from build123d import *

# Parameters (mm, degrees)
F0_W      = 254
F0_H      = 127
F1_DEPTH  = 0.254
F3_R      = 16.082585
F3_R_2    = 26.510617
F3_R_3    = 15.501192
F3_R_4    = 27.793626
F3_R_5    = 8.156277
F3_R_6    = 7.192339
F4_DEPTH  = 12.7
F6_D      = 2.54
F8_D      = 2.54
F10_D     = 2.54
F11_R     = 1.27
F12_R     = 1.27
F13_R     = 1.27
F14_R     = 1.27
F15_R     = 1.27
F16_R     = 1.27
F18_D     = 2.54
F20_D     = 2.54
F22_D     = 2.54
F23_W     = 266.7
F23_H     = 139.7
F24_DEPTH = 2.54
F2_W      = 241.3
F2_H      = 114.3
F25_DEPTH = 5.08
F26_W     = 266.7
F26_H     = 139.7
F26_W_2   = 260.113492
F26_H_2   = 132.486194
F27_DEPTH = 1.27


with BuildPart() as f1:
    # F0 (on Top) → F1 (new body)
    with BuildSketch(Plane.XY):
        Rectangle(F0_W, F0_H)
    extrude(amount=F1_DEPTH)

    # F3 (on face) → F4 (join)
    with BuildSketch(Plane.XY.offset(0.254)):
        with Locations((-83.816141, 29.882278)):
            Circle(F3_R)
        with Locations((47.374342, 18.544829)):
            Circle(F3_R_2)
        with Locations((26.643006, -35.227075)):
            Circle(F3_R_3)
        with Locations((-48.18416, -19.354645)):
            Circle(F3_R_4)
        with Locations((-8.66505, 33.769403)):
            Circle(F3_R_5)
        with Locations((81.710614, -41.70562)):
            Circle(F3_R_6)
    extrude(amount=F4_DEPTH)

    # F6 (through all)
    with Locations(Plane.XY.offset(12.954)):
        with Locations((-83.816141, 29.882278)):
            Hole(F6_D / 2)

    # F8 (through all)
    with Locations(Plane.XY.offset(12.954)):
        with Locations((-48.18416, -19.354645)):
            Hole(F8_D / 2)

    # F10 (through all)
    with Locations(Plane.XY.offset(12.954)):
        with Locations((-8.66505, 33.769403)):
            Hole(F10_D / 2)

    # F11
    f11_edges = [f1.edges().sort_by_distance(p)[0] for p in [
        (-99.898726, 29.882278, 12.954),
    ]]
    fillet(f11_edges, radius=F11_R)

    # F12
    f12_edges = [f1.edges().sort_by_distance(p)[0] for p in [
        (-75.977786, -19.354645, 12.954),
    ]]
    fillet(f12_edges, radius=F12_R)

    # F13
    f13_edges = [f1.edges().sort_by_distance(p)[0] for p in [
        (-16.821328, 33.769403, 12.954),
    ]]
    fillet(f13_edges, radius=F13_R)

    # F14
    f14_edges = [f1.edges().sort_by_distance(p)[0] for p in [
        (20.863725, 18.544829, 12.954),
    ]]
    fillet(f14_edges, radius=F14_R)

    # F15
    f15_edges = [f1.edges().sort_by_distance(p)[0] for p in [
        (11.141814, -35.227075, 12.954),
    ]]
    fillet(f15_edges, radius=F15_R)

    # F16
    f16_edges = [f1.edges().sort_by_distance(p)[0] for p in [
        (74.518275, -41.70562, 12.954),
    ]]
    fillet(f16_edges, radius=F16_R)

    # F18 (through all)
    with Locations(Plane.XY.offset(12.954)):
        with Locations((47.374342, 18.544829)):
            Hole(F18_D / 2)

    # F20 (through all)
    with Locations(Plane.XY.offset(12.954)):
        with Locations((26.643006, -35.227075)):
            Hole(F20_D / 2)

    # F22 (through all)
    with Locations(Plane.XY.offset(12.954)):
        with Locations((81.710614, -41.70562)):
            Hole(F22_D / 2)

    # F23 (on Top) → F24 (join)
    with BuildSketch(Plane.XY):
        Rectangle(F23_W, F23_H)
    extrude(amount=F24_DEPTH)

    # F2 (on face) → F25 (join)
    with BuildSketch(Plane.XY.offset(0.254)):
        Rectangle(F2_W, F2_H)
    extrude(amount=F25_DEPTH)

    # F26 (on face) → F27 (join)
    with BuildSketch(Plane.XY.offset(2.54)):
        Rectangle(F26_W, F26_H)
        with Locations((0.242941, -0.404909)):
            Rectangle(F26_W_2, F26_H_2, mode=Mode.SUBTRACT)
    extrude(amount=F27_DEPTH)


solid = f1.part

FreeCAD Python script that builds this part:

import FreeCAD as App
import Part
import Sketcher
from FreeCAD import Vector
Q = App.Units.Quantity


def edges_at(feature, points):
    """Names of the edges that pass closest to the given points."""
    edges = feature.Shape.Edges
    near = lambda p: min(range(len(edges)), key=lambda i: edges[i].distToShape(Part.Vertex(*p))[0])
    return sorted({f"Edge{near(p) + 1}" for p in points})


def add_polygon(sketch, points):
    """Adds a closed chain of lines whose ends are joined by coincident constraints."""
    first, n = sketch.GeometryCount, len(points)
    for a, b in zip(points, points[1:] + points[:1]):
        sketch.addGeometry(Part.LineSegment(App.Vector(*a, 0), App.Vector(*b, 0)), False)
    for i in range(n):
        sketch.addConstraint(Sketcher.Constraint("Coincident", first + i, 2, first + (i + 1) % n, 1))

doc = App.newDocument("Part")
body = doc.addObject("PartDesign::Body", "Body")

sketch1 = doc.addObject("Sketcher::SketchObject", "Sketch")
body.addObject(sketch1)
sketch1.AttachmentSupport = (doc.XY_Plane, [""])
sketch1.MapMode = "FlatFace"
add_polygon(sketch1, [(-127, 63.5), (-127, -63.5), (127, -63.5), (127, 63.5)])
sketch1.addConstraint(Sketcher.Constraint("Vertical", 0))
sketch1.addConstraint(Sketcher.Constraint("Horizontal", 1))
sketch1.addConstraint(Sketcher.Constraint("Vertical", 2))
sketch1.addConstraint(Sketcher.Constraint("Horizontal", 3))
sketch1.addConstraint(Sketcher.Constraint("Symmetric", 0, 2, 2, 2, -1, 1))
sketch1.addConstraint(Sketcher.Constraint("DistanceX", 1, 1, 1, 2, Q("10 in")))
sketch1.addConstraint(Sketcher.Constraint("DistanceY", 0, 2, 0, 1, Q("5 in")))
pad1 = doc.addObject("PartDesign::Pad", "Pad")
body.addObject(pad1)
pad1.Profile = sketch1
pad1.Length = Q("0.01 in")

sketch2 = doc.addObject("Sketcher::SketchObject", "Sketch001")
body.addObject(sketch2)
sketch2.AttachmentSupport = (doc.XY_Plane, [""])
sketch2.MapMode = "FlatFace"
sketch2.AttachmentOffset = App.Placement(Vector(0, 0, 0.01 * 25.4), App.Rotation())
sketch2.addGeometry(Part.Circle(Vector(-83.816141, 29.882278, 0), Vector(0, 0, 1), 16.082585), False)
sketch2.addGeometry(Part.Circle(Vector(47.374342, 18.544829, 0), Vector(0, 0, 1), 26.510617), False)
sketch2.addGeometry(Part.Circle(Vector(26.643006, -35.227075, 0), Vector(0, 0, 1), 15.501192), False)
sketch2.addGeometry(Part.Circle(Vector(-48.18416, -19.354645, 0), Vector(0, 0, 1), 27.793626), False)
sketch2.addGeometry(Part.Circle(Vector(-8.66505, 33.769403, 0), Vector(0, 0, 1), 8.156277), False)
sketch2.addGeometry(Part.Circle(Vector(81.710614, -41.70562, 0), Vector(0, 0, 1), 7.192339), False)
sketch2.addConstraint(Sketcher.Constraint("Diameter", 0, Q("32.16517 mm")))
sketch2.addConstraint(Sketcher.Constraint("Diameter", 1, Q("53.021234 mm")))
sketch2.addConstraint(Sketcher.Constraint("Diameter", 2, Q("31.002384 mm")))
sketch2.addConstraint(Sketcher.Constraint("Diameter", 3, Q("55.587252 mm")))
sketch2.addConstraint(Sketcher.Constraint("Diameter", 4, Q("16.312554 mm")))
sketch2.addConstraint(Sketcher.Constraint("Diameter", 5, Q("14.384678 mm")))
sketch2.addConstraint(Sketcher.Constraint("DistanceX", 0, 3, -1, 1, Q("83.816141 mm")))
sketch2.addConstraint(Sketcher.Constraint("DistanceY", -1, 1, 1, 3, Q("18.544829 mm")))
sketch2.addConstraint(Sketcher.Constraint("DistanceX", 3, 3, -1, 1, Q("48.18416 mm")))
sketch2.addConstraint(Sketcher.Constraint("DistanceX", 4, 3, -1, 1, Q("8.66505 mm")))
sketch2.addConstraint(Sketcher.Constraint("DistanceY", 5, 3, -1, 1, Q("41.70562 mm")))
sketch2.addConstraint(Sketcher.Constraint("DistanceY", 1, 3, 0, 3, Q("11.337449 mm")))
sketch2.addConstraint(Sketcher.Constraint("DistanceY", 2, 3, 3, 3, Q("15.87243 mm")))
sketch2.addConstraint(Sketcher.Constraint("DistanceY", 3, 3, 4, 3, Q("53.124048 mm")))
sketch2.addConstraint(Sketcher.Constraint("DistanceX", 2, 3, 5, 3, Q("55.067608 mm")))
sketch2.addConstraint(Sketcher.Constraint("DistanceX", -1, 1, 1, 3, Q("47.374342 mm")))
sketch2.addConstraint(Sketcher.Constraint("DistanceX", -1, 1, 2, 3, Q("26.643006 mm")))
sketch2.addConstraint(Sketcher.Constraint("DistanceY", 2, 3, -1, 1, Q("35.227075 mm")))
pad2 = doc.addObject("PartDesign::Pad", "Pad001")
body.addObject(pad2)
pad2.Profile = sketch2
pad2.Length = Q("0.5 in")

sketch3 = doc.addObject("Sketcher::SketchObject", "Sketch002")
body.addObject(sketch3)
sketch3.AttachmentSupport = (doc.XY_Plane, [""])
sketch3.MapMode = "FlatFace"
sketch3.AttachmentOffset = App.Placement(Vector(0, 0, 0.51 * 25.4), App.Rotation())
sketch3.addGeometry(Part.Circle(Vector(-83.816141, 29.882278, 0), Vector(0, 0, 1), 1.27), False)
sketch3.addConstraint(Sketcher.Constraint("Diameter", 0, Q("0.1 in")))
sketch3.addConstraint(Sketcher.Constraint("DistanceX", 0, 3, -1, 1, Q("83.816141 mm")))
sketch3.addConstraint(Sketcher.Constraint("DistanceY", -1, 1, 0, 3, Q("29.882278 mm")))
doc.recompute()
hole = doc.addObject("PartDesign::Hole", "Hole")
body.addObject(hole)
hole.Profile = sketch3
hole.ThreadType = "None"
hole.Diameter = Q("0.1 in")
hole.DepthType = "ThroughAll"

sketch4 = doc.addObject("Sketcher::SketchObject", "Sketch003")
body.addObject(sketch4)
sketch4.AttachmentSupport = (doc.XY_Plane, [""])
sketch4.MapMode = "FlatFace"
sketch4.AttachmentOffset = App.Placement(Vector(0, 0, 0.51 * 25.4), App.Rotation())
sketch4.addGeometry(Part.Circle(Vector(-48.18416, -19.354645, 0), Vector(0, 0, 1), 1.27), False)
sketch4.addConstraint(Sketcher.Constraint("Diameter", 0, Q("0.1 in")))
sketch4.addConstraint(Sketcher.Constraint("DistanceX", 0, 3, -1, 1, Q("48.18416 mm")))
sketch4.addConstraint(Sketcher.Constraint("DistanceY", 0, 3, -1, 1, Q("19.354645 mm")))
doc.recompute()
hole2 = doc.addObject("PartDesign::Hole", "Hole001")
body.addObject(hole2)
hole2.Profile = sketch4
hole2.ThreadType = "None"
hole2.Diameter = Q("0.1 in")
hole2.DepthType = "ThroughAll"

sketch5 = doc.addObject("Sketcher::SketchObject", "Sketch004")
body.addObject(sketch5)
sketch5.AttachmentSupport = (doc.XY_Plane, [""])
sketch5.MapMode = "FlatFace"
sketch5.AttachmentOffset = App.Placement(Vector(0, 0, 0.51 * 25.4), App.Rotation())
sketch5.addGeometry(Part.Circle(Vector(-8.66505, 33.769403, 0), Vector(0, 0, 1), 1.27), False)
sketch5.addConstraint(Sketcher.Constraint("Diameter", 0, Q("0.1 in")))
sketch5.addConstraint(Sketcher.Constraint("DistanceX", 0, 3, -1, 1, Q("8.66505 mm")))
sketch5.addConstraint(Sketcher.Constraint("DistanceY", -1, 1, 0, 3, Q("33.769403 mm")))
doc.recompute()
hole3 = doc.addObject("PartDesign::Hole", "Hole002")
body.addObject(hole3)
hole3.Profile = sketch5
hole3.ThreadType = "None"
hole3.Diameter = Q("0.1 in")
hole3.DepthType = "ThroughAll"
doc.recompute()

fillet = doc.addObject("PartDesign::Fillet", "Fillet")
body.addObject(fillet)
fillet.Base = (hole3, edges_at(hole3, [(-99.899, 29.882, 12.954)]))
fillet.Radius = Q("0.05 in")
doc.recompute()

fillet2 = doc.addObject("PartDesign::Fillet", "Fillet001")
body.addObject(fillet2)
fillet2.Base = (fillet, edges_at(fillet, [(-75.978, -19.355, 12.954)]))
fillet2.Radius = Q("0.05 in")
doc.recompute()

fillet3 = doc.addObject("PartDesign::Fillet", "Fillet002")
body.addObject(fillet3)
fillet3.Base = (fillet2, edges_at(fillet2, [(-16.821, 33.769, 12.954)]))
fillet3.Radius = Q("0.05 in")
doc.recompute()

fillet4 = doc.addObject("PartDesign::Fillet", "Fillet003")
body.addObject(fillet4)
fillet4.Base = (fillet3, edges_at(fillet3, [(20.864, 18.545, 12.954)]))
fillet4.Radius = Q("0.05 in")
doc.recompute()

fillet5 = doc.addObject("PartDesign::Fillet", "Fillet004")
body.addObject(fillet5)
fillet5.Base = (fillet4, edges_at(fillet4, [(11.142, -35.227, 12.954)]))
fillet5.Radius = Q("0.05 in")
doc.recompute()

fillet6 = doc.addObject("PartDesign::Fillet", "Fillet005")
body.addObject(fillet6)
fillet6.Base = (fillet5, edges_at(fillet5, [(74.518, -41.706, 12.954)]))
fillet6.Radius = Q("0.05 in")

sketch6 = doc.addObject("Sketcher::SketchObject", "Sketch005")
body.addObject(sketch6)
sketch6.AttachmentSupport = (doc.XY_Plane, [""])
sketch6.MapMode = "FlatFace"
sketch6.AttachmentOffset = App.Placement(Vector(0, 0, 0.51 * 25.4), App.Rotation())
sketch6.addGeometry(Part.Circle(Vector(47.374342, 18.544829, 0), Vector(0, 0, 1), 1.27), False)
sketch6.addConstraint(Sketcher.Constraint("Diameter", 0, Q("0.1 in")))
sketch6.addConstraint(Sketcher.Constraint("DistanceY", -1, 1, 0, 3, Q("18.544829 mm")))
sketch6.addConstraint(Sketcher.Constraint("DistanceX", -1, 1, 0, 3, Q("47.374342 mm")))
doc.recompute()
hole4 = doc.addObject("PartDesign::Hole", "Hole003")
body.addObject(hole4)
hole4.Profile = sketch6
hole4.ThreadType = "None"
hole4.Diameter = Q("0.1 in")
hole4.DepthType = "ThroughAll"

sketch7 = doc.addObject("Sketcher::SketchObject", "Sketch006")
body.addObject(sketch7)
sketch7.AttachmentSupport = (doc.XY_Plane, [""])
sketch7.MapMode = "FlatFace"
sketch7.AttachmentOffset = App.Placement(Vector(0, 0, 0.51 * 25.4), App.Rotation())
sketch7.addGeometry(Part.Circle(Vector(26.643006, -35.227075, 0), Vector(0, 0, 1), 1.27), False)
sketch7.addConstraint(Sketcher.Constraint("Diameter", 0, Q("0.1 in")))
sketch7.addConstraint(Sketcher.Constraint("DistanceX", -1, 1, 0, 3, Q("26.643006 mm")))
sketch7.addConstraint(Sketcher.Constraint("DistanceY", 0, 3, -1, 1, Q("35.227075 mm")))
doc.recompute()
hole5 = doc.addObject("PartDesign::Hole", "Hole004")
body.addObject(hole5)
hole5.Profile = sketch7
hole5.ThreadType = "None"
hole5.Diameter = Q("0.1 in")
hole5.DepthType = "ThroughAll"

sketch8 = doc.addObject("Sketcher::SketchObject", "Sketch007")
body.addObject(sketch8)
sketch8.AttachmentSupport = (doc.XY_Plane, [""])
sketch8.MapMode = "FlatFace"
sketch8.AttachmentOffset = App.Placement(Vector(0, 0, 0.51 * 25.4), App.Rotation())
sketch8.addGeometry(Part.Circle(Vector(81.710614, -41.70562, 0), Vector(0, 0, 1), 1.27), False)
sketch8.addConstraint(Sketcher.Constraint("Diameter", 0, Q("0.1 in")))
sketch8.addConstraint(Sketcher.Constraint("DistanceY", 0, 3, -1, 1, Q("41.70562 mm")))
sketch8.addConstraint(Sketcher.Constraint("DistanceX", -1, 1, 0, 3, Q("81.710614 mm")))
doc.recompute()
hole6 = doc.addObject("PartDesign::Hole", "Hole005")
body.addObject(hole6)
hole6.Profile = sketch8
hole6.ThreadType = "None"
hole6.Diameter = Q("0.1 in")
hole6.DepthType = "ThroughAll"

sketch9 = doc.addObject("Sketcher::SketchObject", "Sketch008")
body.addObject(sketch9)
sketch9.AttachmentSupport = (doc.XY_Plane, [""])
sketch9.MapMode = "FlatFace"
add_polygon(sketch9, [(-133.35, 69.85), (-133.35, -69.85), (133.35, -69.85), (133.35, 69.85)])
sketch9.addConstraint(Sketcher.Constraint("Vertical", 0))
sketch9.addConstraint(Sketcher.Constraint("Horizontal", 1))
sketch9.addConstraint(Sketcher.Constraint("Vertical", 2))
sketch9.addConstraint(Sketcher.Constraint("Horizontal", 3))
sketch9.addConstraint(Sketcher.Constraint("Symmetric", 0, 2, 2, 2, -1, 1))
sketch9.addConstraint(Sketcher.Constraint("DistanceX", 1, 1, 1, 2, Q("10.5 in")))
sketch9.addConstraint(Sketcher.Constraint("DistanceY", 0, 2, 0, 1, Q("5.5 in")))
pad3 = doc.addObject("PartDesign::Pad", "Pad002")
body.addObject(pad3)
pad3.Profile = sketch9
pad3.Length = Q("0.1 in")

sketch10 = doc.addObject("Sketcher::SketchObject", "Sketch009")
body.addObject(sketch10)
sketch10.AttachmentSupport = (doc.XY_Plane, [""])
sketch10.MapMode = "FlatFace"
sketch10.AttachmentOffset = App.Placement(Vector(0, 0, 0.01 * 25.4), App.Rotation())
add_polygon(sketch10, [(-120.65, 57.15), (-120.65, -57.15), (120.65, -57.15), (120.65, 57.15)])
sketch10.addConstraint(Sketcher.Constraint("Vertical", 0))
sketch10.addConstraint(Sketcher.Constraint("Horizontal", 1))
sketch10.addConstraint(Sketcher.Constraint("Vertical", 2))
sketch10.addConstraint(Sketcher.Constraint("Horizontal", 3))
sketch10.addConstraint(Sketcher.Constraint("Symmetric", 0, 2, 2, 2, -1, 1))
sketch10.addConstraint(Sketcher.Constraint("DistanceX", 1, 1, 1, 2, Q("9.5 in")))
sketch10.addConstraint(Sketcher.Constraint("DistanceY", 0, 2, 0, 1, Q("4.5 in")))
pad4 = doc.addObject("PartDesign::Pad", "Pad003")
body.addObject(pad4)
pad4.Profile = sketch10
pad4.Length = Q("0.2 in")

sketch11 = doc.addObject("Sketcher::SketchObject", "Sketch010")
body.addObject(sketch11)
sketch11.AttachmentSupport = (doc.XY_Plane, [""])
sketch11.MapMode = "FlatFace"
sketch11.AttachmentOffset = App.Placement(Vector(0, 0, 0.1 * 25.4), App.Rotation())
add_polygon(sketch11, [(-133.35, 69.85), (-133.35, -69.85), (133.35, -69.85), (133.35, 69.85)])
add_polygon(sketch11, [(130.299687, -66.648006), (-129.813805, -66.648006), (-129.813805, 65.838188), (130.299687, 65.838188)])
sketch11.addConstraint(Sketcher.Constraint("Vertical", 0))
sketch11.addConstraint(Sketcher.Constraint("Horizontal", 1))
sketch11.addConstraint(Sketcher.Constraint("Vertical", 2))
sketch11.addConstraint(Sketcher.Constraint("Horizontal", 3))
sketch11.addConstraint(Sketcher.Constraint("Horizontal", 4))
sketch11.addConstraint(Sketcher.Constraint("Vertical", 5))
sketch11.addConstraint(Sketcher.Constraint("Horizontal", 6))
sketch11.addConstraint(Sketcher.Constraint("Vertical", 7))
sketch11.addConstraint(Sketcher.Constraint("Symmetric", 0, 2, 2, 2, -1, 1))
sketch11.addConstraint(Sketcher.Constraint("DistanceX", 1, 1, 1, 2, Q("10.5 in")))
sketch11.addConstraint(Sketcher.Constraint("DistanceY", 0, 2, 0, 1, Q("5.5 in")))
sketch11.addConstraint(Sketcher.Constraint("DistanceX", 4, 2, 4, 1, Q("260.113492 mm")))
sketch11.addConstraint(Sketcher.Constraint("DistanceY", 5, 1, 5, 2, Q("132.486194 mm")))
sketch11.addConstraint(Sketcher.Constraint("DistanceY", -1, 1, 5, 2, Q("65.838188 mm")))
sketch11.addConstraint(Sketcher.Constraint("DistanceX", 4, 2, -1, 1, Q("129.813805 mm")))
pad5 = doc.addObject("PartDesign::Pad", "Pad004")
body.addObject(pad5)
pad5.Profile = sketch11
pad5.Length = Q("0.05 in")

doc.recompute()
